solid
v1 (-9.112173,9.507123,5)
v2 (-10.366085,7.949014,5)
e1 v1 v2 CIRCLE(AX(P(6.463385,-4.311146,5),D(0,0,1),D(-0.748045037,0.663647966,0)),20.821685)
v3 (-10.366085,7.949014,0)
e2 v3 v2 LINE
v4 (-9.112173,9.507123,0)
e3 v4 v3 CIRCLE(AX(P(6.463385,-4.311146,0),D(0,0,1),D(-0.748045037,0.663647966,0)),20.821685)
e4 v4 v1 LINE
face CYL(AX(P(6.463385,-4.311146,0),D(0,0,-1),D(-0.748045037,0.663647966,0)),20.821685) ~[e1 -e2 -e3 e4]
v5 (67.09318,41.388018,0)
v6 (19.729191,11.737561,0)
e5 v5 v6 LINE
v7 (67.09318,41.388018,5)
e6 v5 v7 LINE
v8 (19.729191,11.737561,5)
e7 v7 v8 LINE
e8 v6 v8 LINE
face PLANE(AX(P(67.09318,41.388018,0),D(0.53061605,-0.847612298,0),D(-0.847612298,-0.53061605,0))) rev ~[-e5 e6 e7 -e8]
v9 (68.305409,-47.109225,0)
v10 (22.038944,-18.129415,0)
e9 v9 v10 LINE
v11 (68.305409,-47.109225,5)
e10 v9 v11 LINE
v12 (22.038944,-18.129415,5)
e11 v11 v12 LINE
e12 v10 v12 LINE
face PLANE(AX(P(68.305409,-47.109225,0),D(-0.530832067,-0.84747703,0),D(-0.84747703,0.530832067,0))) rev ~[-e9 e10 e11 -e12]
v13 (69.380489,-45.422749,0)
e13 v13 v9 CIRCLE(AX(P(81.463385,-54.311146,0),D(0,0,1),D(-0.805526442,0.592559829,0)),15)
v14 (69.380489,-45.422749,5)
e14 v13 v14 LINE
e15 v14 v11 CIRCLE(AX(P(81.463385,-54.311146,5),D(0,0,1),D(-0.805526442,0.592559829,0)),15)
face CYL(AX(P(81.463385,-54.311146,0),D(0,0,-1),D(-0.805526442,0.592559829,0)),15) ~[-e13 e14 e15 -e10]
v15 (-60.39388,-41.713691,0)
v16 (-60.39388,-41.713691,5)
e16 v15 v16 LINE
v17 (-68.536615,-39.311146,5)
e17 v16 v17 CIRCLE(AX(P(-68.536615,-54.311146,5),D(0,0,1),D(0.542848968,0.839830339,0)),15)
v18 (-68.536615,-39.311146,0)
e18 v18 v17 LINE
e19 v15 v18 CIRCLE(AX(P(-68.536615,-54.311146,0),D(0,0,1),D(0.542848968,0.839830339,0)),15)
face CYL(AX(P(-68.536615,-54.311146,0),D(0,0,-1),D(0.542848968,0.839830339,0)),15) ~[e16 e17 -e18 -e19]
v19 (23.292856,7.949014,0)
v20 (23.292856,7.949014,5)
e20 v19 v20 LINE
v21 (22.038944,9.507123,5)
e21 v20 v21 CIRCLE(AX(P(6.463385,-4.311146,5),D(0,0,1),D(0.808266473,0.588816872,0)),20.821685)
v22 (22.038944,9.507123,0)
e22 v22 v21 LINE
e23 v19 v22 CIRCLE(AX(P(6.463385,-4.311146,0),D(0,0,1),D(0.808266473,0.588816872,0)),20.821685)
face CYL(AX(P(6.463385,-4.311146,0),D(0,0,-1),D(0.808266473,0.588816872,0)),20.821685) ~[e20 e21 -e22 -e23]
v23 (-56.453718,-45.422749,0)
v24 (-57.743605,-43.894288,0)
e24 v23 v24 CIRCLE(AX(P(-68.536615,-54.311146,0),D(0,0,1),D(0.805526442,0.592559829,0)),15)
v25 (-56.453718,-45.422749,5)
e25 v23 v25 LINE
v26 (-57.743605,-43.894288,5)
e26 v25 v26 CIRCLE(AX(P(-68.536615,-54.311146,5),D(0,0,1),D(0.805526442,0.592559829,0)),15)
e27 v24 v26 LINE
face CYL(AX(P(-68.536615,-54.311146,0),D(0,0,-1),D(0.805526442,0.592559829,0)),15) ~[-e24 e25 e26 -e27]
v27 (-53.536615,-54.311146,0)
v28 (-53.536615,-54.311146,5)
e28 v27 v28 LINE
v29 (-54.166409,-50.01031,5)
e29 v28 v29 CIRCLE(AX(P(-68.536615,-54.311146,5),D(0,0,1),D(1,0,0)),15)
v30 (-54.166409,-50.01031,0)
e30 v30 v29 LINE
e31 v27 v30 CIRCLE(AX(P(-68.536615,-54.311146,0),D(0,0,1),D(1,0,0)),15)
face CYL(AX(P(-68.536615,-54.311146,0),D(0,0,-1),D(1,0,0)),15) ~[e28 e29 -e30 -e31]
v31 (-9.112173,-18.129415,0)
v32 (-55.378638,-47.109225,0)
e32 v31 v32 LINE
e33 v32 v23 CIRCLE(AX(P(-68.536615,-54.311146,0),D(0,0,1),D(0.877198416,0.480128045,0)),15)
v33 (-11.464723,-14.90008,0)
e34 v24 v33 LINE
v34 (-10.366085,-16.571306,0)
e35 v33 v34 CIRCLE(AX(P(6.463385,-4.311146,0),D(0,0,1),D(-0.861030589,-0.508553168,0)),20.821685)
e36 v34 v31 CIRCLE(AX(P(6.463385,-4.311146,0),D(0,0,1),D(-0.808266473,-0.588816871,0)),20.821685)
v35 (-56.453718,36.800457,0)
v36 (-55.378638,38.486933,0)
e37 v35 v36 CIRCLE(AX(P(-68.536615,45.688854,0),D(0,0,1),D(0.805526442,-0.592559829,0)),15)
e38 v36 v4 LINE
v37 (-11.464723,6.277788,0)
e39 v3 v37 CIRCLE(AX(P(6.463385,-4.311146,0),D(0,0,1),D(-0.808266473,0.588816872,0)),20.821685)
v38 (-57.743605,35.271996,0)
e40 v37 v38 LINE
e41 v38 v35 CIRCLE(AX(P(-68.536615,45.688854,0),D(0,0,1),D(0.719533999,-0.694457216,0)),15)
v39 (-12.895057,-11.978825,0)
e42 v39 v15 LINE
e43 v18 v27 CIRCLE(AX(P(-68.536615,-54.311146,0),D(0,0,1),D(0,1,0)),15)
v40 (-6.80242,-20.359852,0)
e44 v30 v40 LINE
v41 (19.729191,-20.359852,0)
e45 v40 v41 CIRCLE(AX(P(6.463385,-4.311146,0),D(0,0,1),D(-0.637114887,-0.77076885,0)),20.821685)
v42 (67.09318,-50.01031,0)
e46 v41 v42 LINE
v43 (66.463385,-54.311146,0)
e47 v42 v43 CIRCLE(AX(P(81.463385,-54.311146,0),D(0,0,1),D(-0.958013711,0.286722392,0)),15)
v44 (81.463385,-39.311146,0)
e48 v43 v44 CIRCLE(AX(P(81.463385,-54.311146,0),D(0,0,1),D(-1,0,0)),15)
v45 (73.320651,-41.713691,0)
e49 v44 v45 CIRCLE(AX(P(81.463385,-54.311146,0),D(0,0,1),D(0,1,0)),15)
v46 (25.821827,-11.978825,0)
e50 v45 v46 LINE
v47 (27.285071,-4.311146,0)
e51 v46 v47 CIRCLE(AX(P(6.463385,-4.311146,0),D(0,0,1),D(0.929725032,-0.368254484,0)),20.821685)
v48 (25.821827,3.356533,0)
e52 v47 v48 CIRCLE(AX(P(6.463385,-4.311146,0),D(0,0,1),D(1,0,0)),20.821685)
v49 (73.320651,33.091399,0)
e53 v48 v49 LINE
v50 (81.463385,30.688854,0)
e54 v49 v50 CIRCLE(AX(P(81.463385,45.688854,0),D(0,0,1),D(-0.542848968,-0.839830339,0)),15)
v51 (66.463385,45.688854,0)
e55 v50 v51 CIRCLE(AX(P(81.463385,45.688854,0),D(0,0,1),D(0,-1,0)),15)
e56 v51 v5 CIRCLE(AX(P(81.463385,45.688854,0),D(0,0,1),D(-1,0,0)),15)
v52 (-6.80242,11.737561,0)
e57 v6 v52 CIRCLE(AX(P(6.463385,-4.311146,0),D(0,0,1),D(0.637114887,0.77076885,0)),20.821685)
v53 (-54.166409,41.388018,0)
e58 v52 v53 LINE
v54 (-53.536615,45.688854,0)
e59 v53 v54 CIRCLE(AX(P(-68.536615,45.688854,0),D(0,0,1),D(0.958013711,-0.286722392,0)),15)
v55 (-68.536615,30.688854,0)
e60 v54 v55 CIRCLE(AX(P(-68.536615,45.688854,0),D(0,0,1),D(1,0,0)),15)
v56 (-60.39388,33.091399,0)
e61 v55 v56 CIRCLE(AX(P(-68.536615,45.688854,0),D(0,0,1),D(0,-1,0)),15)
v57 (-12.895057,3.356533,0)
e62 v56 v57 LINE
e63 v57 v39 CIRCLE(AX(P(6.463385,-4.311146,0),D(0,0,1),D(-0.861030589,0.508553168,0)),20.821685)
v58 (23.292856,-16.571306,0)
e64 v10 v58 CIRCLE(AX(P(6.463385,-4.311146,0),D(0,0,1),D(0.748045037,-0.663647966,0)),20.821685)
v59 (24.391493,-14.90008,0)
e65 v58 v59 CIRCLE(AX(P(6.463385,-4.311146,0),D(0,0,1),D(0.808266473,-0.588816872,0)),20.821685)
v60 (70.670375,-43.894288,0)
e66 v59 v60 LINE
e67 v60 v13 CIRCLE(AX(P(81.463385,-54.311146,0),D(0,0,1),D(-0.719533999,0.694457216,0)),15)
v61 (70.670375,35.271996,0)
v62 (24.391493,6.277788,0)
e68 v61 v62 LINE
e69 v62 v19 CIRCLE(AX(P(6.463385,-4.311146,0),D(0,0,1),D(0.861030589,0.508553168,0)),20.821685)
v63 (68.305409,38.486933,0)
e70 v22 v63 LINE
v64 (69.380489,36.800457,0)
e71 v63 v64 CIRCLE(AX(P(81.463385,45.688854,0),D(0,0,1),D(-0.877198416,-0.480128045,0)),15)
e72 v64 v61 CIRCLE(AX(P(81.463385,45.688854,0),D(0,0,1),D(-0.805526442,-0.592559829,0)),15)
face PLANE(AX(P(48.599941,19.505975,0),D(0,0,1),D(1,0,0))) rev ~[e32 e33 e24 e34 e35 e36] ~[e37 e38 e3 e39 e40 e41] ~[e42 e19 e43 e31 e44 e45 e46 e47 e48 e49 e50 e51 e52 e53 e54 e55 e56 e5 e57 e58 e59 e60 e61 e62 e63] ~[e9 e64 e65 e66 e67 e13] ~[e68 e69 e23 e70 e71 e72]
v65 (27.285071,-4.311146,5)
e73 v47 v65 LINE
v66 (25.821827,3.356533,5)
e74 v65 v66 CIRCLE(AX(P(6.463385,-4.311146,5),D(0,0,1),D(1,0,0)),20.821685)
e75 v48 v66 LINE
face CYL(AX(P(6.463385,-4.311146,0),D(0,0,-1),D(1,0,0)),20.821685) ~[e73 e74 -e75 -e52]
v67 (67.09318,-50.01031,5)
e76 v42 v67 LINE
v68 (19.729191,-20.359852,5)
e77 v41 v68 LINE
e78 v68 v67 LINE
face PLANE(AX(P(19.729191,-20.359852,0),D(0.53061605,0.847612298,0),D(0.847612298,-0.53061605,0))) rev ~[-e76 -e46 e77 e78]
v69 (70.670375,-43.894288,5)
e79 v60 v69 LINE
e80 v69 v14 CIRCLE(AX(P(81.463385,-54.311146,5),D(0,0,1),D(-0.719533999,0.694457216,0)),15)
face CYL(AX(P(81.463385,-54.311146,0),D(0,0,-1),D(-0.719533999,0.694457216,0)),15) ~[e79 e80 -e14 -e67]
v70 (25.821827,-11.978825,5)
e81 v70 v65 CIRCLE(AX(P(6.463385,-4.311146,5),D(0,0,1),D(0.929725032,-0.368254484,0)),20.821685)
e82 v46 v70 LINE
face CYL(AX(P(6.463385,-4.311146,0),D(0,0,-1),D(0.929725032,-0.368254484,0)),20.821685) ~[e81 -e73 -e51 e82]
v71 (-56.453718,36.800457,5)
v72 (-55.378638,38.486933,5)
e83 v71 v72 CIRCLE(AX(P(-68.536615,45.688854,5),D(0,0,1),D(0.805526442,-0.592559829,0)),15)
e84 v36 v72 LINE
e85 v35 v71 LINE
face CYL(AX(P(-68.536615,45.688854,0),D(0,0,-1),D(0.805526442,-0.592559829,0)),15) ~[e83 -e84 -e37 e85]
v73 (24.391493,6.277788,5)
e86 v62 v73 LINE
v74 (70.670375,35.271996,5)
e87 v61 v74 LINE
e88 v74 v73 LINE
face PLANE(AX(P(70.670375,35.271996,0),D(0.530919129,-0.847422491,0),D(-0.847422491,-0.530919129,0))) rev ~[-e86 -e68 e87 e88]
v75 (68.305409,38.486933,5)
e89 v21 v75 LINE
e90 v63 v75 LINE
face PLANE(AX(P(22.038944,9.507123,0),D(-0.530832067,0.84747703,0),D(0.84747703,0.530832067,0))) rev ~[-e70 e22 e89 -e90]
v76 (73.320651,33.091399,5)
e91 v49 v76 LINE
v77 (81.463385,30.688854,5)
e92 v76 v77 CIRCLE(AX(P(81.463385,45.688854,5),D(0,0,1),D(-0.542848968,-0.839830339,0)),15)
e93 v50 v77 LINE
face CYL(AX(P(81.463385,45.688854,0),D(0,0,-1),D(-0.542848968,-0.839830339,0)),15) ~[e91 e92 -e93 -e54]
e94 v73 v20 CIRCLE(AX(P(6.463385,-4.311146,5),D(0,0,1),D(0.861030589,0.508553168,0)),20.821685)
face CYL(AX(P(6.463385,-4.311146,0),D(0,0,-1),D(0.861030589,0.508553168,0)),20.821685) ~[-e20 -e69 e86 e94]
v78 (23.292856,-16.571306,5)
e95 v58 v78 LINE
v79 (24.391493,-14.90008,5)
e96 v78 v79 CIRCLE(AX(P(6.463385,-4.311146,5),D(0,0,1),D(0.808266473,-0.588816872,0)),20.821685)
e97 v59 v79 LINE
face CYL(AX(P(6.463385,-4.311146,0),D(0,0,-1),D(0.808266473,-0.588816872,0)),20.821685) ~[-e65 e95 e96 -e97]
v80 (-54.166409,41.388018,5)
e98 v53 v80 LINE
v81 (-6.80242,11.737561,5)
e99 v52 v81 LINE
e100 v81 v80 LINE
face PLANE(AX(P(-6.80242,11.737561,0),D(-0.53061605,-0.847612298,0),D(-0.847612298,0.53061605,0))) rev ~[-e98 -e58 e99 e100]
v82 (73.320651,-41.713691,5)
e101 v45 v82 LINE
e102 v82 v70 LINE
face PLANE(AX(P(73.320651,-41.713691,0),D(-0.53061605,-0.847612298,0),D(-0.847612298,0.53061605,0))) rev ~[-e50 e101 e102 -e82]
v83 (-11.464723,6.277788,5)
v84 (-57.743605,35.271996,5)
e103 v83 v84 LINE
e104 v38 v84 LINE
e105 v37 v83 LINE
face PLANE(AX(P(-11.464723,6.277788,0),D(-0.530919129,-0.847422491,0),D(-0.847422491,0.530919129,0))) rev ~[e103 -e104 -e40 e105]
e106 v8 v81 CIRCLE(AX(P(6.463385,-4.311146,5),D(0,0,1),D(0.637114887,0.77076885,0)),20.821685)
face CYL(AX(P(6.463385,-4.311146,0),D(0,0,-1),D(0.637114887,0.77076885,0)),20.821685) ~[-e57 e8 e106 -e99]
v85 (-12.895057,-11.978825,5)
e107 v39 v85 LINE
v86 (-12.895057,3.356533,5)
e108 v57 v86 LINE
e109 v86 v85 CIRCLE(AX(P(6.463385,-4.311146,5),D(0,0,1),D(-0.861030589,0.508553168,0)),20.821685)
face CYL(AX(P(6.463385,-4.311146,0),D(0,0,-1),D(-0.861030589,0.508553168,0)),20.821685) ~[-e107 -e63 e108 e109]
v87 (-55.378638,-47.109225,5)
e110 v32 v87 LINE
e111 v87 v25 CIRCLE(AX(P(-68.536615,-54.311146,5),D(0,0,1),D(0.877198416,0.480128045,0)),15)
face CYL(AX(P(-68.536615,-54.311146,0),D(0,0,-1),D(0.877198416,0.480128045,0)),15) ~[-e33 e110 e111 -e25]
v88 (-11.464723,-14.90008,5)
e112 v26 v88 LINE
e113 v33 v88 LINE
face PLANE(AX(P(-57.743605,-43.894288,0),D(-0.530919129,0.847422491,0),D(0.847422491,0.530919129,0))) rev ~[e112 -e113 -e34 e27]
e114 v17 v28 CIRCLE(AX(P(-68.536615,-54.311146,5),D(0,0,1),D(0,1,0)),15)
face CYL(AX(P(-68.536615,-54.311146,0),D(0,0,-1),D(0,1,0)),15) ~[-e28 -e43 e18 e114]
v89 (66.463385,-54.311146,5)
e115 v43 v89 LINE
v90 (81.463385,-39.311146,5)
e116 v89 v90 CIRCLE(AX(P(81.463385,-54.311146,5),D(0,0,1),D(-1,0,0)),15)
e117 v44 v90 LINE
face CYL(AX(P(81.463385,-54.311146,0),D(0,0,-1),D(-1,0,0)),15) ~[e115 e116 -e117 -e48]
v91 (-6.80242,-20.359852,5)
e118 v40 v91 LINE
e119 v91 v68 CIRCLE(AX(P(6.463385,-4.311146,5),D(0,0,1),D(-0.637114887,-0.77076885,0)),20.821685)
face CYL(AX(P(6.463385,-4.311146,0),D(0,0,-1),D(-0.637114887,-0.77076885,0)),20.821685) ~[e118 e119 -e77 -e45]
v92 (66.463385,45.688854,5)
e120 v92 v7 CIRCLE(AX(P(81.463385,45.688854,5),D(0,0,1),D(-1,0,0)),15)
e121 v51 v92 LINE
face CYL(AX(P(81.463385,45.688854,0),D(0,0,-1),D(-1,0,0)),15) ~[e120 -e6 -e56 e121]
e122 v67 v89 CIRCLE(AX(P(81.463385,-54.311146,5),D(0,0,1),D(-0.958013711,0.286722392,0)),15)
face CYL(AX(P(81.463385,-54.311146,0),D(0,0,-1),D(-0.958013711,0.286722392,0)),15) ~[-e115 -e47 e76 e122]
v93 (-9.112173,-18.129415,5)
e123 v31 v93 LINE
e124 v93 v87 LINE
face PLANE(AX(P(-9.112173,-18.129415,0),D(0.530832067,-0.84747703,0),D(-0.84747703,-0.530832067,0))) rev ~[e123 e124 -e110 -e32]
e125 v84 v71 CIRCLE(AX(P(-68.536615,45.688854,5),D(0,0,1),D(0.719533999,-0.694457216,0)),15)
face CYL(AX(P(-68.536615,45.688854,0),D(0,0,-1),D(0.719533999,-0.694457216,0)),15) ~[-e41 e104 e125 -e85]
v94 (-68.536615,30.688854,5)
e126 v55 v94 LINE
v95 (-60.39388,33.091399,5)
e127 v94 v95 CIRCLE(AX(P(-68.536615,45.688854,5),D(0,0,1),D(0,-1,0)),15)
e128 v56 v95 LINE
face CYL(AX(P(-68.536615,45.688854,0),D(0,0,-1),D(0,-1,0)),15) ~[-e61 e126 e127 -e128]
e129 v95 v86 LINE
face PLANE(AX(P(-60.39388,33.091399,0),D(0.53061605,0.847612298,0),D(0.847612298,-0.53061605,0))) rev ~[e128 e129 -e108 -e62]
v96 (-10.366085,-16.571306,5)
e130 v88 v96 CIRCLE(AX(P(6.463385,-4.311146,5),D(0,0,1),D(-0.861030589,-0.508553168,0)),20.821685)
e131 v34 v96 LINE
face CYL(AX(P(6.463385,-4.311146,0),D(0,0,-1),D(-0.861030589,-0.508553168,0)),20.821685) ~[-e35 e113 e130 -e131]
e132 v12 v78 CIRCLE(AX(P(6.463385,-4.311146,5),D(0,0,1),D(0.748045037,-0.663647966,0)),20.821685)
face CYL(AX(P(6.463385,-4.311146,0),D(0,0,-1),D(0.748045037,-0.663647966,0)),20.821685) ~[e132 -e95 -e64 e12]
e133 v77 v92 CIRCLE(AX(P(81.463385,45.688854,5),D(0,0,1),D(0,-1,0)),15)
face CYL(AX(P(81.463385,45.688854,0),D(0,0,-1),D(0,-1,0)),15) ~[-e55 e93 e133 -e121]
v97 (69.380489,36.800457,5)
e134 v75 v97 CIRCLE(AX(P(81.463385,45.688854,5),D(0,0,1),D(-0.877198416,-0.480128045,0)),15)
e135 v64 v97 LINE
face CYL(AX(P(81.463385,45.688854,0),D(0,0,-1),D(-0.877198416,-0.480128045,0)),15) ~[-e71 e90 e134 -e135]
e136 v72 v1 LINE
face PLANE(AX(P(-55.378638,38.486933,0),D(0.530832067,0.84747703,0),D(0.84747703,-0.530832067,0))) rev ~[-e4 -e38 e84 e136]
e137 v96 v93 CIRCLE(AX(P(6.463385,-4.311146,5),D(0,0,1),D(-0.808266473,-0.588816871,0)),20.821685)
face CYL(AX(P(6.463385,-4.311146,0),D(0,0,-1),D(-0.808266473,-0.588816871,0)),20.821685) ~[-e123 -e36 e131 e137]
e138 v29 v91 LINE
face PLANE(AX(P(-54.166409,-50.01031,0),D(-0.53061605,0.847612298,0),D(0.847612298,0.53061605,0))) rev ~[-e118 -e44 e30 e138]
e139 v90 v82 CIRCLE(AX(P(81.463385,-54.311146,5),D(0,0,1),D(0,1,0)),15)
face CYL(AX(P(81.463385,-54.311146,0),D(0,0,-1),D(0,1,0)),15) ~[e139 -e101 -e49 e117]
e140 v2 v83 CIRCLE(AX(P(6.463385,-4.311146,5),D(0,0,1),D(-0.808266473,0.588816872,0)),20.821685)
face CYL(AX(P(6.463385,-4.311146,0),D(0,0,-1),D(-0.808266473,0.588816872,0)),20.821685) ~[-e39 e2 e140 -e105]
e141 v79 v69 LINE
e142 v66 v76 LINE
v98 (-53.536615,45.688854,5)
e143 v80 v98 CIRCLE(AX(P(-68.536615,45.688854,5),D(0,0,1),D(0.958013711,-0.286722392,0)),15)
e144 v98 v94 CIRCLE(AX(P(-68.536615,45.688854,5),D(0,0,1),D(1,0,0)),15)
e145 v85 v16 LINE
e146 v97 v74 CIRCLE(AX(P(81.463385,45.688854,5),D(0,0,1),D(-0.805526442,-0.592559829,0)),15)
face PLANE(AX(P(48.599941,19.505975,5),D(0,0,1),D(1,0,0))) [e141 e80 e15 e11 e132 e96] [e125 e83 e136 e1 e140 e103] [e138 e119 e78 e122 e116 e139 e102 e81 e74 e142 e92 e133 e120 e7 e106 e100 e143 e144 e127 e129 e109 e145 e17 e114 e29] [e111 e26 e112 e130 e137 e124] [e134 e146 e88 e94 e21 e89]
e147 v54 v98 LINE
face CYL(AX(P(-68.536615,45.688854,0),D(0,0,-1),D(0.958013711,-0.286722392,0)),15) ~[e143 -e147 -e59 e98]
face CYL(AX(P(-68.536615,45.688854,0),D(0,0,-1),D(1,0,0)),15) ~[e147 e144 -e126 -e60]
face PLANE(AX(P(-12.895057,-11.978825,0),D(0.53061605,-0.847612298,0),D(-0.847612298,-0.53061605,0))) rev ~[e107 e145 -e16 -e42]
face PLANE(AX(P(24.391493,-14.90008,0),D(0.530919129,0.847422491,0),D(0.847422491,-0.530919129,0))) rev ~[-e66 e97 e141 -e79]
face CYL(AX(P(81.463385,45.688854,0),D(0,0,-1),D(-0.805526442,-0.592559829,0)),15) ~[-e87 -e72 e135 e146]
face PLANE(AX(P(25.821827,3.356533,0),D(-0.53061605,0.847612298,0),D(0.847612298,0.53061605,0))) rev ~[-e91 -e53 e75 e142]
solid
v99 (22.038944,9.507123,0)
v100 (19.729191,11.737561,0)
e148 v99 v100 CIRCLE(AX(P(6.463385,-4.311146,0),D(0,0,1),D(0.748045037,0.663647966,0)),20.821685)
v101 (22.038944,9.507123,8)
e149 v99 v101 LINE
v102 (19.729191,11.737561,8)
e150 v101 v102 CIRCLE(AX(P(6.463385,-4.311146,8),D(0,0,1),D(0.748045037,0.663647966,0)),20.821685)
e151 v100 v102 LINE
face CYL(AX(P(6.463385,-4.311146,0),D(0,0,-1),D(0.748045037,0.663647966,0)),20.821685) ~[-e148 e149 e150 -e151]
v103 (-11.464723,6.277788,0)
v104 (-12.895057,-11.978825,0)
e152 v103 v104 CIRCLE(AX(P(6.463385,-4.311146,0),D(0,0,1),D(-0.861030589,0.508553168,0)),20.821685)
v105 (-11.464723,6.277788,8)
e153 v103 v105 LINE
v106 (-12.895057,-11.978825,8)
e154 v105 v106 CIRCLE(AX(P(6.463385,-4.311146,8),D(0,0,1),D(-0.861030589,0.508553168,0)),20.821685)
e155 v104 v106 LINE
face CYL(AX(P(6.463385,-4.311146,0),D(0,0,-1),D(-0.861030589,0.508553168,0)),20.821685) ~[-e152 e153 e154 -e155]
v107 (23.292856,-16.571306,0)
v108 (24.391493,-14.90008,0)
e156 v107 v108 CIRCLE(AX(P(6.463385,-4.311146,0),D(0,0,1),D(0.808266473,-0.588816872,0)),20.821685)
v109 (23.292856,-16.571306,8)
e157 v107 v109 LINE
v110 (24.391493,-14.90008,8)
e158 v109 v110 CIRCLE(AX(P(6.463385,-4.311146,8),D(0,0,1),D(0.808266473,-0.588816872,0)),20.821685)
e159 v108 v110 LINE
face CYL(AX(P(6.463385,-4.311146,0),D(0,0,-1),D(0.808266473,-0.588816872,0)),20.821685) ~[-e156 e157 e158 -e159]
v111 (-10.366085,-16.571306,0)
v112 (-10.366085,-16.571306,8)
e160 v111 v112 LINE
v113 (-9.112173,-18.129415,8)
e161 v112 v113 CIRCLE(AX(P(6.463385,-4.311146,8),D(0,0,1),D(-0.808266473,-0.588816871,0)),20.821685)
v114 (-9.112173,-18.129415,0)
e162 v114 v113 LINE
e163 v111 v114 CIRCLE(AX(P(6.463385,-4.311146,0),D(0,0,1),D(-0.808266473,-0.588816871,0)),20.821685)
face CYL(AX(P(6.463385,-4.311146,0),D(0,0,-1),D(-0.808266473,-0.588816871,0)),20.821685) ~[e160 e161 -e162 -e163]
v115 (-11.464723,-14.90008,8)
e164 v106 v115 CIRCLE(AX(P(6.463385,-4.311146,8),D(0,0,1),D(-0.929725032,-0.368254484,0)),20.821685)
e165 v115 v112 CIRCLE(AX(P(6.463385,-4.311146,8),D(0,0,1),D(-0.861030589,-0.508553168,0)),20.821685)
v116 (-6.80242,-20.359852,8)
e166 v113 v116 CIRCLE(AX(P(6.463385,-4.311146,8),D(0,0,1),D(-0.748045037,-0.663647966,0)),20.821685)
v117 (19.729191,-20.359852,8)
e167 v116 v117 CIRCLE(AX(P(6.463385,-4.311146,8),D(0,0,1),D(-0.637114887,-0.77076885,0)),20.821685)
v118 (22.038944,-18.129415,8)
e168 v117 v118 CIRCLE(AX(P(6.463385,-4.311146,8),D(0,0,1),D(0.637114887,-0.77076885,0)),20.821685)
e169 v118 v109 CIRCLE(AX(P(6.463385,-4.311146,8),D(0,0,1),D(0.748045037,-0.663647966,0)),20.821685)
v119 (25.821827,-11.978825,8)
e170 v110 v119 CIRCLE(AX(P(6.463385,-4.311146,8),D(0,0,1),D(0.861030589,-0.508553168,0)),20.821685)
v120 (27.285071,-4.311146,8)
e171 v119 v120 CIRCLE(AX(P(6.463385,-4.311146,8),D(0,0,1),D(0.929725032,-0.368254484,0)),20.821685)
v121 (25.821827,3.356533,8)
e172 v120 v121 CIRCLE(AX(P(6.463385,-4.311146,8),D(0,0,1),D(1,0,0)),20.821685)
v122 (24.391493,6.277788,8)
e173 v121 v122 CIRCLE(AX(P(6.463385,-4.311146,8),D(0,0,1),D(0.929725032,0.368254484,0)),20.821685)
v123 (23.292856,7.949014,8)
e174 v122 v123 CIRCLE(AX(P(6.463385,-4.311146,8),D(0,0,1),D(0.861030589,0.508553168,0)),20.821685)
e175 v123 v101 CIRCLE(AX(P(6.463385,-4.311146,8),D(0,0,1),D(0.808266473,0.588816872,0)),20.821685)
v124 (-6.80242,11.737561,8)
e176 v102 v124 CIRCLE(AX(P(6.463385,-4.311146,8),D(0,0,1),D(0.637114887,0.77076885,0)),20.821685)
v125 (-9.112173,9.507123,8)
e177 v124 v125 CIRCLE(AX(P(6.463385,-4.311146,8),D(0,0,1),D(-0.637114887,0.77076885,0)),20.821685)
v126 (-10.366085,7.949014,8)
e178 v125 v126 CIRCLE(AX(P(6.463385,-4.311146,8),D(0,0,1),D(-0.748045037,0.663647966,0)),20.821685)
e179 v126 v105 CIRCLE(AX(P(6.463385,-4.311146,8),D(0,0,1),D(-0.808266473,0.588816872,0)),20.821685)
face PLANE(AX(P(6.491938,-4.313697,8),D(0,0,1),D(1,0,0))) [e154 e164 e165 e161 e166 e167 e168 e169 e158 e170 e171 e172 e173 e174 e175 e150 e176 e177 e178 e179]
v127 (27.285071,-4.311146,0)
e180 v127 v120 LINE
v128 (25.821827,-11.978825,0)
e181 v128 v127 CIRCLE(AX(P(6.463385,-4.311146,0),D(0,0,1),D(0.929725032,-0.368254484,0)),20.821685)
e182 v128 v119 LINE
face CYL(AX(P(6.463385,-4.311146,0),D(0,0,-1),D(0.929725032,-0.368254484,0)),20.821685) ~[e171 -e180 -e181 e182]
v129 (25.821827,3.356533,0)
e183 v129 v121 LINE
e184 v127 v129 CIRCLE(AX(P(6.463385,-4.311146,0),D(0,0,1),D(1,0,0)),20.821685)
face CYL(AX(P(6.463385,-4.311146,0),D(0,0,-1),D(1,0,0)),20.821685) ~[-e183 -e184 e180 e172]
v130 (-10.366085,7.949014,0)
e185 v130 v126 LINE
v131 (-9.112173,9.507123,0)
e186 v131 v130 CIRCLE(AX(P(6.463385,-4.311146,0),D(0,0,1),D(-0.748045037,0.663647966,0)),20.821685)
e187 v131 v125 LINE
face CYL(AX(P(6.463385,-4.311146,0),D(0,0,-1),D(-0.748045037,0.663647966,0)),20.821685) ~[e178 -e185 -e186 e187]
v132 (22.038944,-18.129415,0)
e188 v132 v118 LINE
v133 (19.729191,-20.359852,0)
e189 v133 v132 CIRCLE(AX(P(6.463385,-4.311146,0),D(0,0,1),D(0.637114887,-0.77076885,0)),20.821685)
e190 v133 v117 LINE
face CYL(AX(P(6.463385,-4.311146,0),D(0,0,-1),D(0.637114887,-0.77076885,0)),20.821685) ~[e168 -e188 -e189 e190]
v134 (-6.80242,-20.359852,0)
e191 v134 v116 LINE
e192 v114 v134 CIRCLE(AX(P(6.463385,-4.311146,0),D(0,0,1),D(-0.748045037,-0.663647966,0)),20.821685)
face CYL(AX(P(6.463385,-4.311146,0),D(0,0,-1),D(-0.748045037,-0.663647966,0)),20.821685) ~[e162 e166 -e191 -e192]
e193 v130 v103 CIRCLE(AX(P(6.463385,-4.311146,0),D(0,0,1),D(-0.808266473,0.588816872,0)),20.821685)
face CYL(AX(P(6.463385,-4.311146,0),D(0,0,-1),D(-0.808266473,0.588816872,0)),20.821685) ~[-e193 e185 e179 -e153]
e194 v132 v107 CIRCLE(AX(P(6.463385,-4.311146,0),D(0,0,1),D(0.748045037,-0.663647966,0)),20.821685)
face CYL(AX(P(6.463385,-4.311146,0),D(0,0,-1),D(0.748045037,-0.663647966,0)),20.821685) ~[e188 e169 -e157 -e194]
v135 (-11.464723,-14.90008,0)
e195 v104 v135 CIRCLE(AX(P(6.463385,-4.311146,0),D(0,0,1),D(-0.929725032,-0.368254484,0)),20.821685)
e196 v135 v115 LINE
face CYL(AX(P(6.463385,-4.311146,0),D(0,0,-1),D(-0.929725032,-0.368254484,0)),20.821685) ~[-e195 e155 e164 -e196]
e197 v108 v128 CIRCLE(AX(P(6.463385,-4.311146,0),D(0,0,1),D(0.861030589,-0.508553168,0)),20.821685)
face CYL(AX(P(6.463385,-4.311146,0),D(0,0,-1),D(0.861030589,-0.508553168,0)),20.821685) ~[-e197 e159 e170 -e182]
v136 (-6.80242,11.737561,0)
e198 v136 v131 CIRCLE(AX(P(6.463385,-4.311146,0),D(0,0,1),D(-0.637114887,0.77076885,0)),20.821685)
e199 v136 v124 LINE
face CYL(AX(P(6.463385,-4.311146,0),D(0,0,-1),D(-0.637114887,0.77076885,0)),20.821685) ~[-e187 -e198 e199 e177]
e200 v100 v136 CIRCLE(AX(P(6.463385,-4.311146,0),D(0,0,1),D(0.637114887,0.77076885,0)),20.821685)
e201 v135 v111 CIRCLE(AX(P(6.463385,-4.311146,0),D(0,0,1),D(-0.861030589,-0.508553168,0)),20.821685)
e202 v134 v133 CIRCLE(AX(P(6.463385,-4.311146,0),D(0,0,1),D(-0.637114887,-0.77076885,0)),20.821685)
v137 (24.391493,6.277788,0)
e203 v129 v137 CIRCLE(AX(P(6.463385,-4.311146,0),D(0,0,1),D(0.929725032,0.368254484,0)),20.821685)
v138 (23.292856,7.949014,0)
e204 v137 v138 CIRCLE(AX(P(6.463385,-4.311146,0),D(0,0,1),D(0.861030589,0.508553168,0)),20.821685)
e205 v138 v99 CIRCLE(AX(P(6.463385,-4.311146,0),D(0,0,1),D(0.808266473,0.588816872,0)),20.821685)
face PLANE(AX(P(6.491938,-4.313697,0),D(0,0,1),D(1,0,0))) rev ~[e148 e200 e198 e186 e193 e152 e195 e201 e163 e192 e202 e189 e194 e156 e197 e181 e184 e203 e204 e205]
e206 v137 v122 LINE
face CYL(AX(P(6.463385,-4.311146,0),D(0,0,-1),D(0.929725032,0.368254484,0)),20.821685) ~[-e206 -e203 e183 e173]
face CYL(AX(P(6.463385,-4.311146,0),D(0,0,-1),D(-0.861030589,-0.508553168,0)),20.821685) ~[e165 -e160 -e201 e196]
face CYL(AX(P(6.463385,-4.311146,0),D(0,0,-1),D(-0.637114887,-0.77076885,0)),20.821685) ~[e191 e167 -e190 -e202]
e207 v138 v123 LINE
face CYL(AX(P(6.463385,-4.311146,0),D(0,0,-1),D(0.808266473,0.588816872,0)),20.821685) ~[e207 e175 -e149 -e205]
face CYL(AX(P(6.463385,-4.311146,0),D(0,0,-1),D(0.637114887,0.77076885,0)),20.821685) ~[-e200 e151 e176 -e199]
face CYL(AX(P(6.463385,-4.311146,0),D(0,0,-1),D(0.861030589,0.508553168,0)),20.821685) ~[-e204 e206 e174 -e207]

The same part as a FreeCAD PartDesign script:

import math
import FreeCAD as App
import Part
import Sketcher

V = App.Vector

doc = App.newDocument("Part")
body = doc.addObject("PartDesign::Body", "Body")

# Sketch on XY plane
sketch1 = body.newObject("Sketcher::SketchObject", "Sketch")
sketch1.AttachmentSupport = (doc.getObject("XY_Plane"), [""])
sketch1.MapMode = "FlatFace"
sketch1.addGeometry(Part.ArcOfCircle(Part.Circle(V(6.5, -4.3, 0), V(0, 0, 1), 20.8), math.radians(-22), math.radians(0)), False)
sketch1.addGeometry(Part.ArcOfCircle(Part.Circle(V(6.5, -4.3, 0), V(0, 0, 1), 20.8), math.radians(0), math.radians(22)), False)
sketch1.addGeometry(Part.ArcOfCircle(Part.Circle(V(6.5, -4.3, 0), V(0, 0, 1), 20.8), math.radians(21.61), math.radians(30.57)), False)
sketch1.addGeometry(Part.ArcOfCircle(Part.Circle(V(6.5, -4.3, 0), V(0, 0, 1), 20.8), math.radians(30.57), math.radians(36.07)), False)
sketch1.addGeometry(Part.ArcOfCircle(Part.Circle(V(6.5, -4.3, 0), V(0, 0, 1), 20.8), math.radians(36.07), math.radians(41.58)), False)
sketch1.addGeometry(Part.ArcOfCircle(Part.Circle(V(6.5, -4.3, 0), V(0, 0, 1), 20.8), math.radians(41.58), math.radians(50.42)), False)
sketch1.addGeometry(Part.ArcOfCircle(Part.Circle(V(6.5, -4.3, 0), V(0, 0, 1), 20.8), math.radians(50), math.radians(130)), False)
sketch1.addGeometry(Part.ArcOfCircle(Part.Circle(V(6.5, -4.3, 0), V(0, 0, 1), 20.8), math.radians(129.58), math.radians(138.42)), False)
sketch1.addGeometry(Part.ArcOfCircle(Part.Circle(V(6.5, -4.3, 0), V(0, 0, 1), 20.8), math.radians(138.42), math.radians(143.93)), False)
sketch1.addGeometry(Part.ArcOfCircle(Part.Circle(V(6.5, -4.3, 0), V(0, 0, 1), 20.8), math.radians(143.93), math.radians(149.43)), False)
sketch1.addGeometry(Part.ArcOfCircle(Part.Circle(V(6.5, -4.3, 0), V(0, 0, 1), 20.8), math.radians(149), math.radians(202)), False)
sketch1.addGeometry(Part.ArcOfCircle(Part.Circle(V(6.5, -4.3, 0), V(0, 0, 1), 20.8), math.radians(-158.39), math.radians(-149.43)), False)
sketch1.addGeometry(Part.ArcOfCircle(Part.Circle(V(6.5, -4.3, 0), V(0, 0, 1), 20.8), math.radians(-149.43), math.radians(-143.93)), False)
sketch1.addGeometry(Part.ArcOfCircle(Part.Circle(V(6.5, -4.3, 0), V(0, 0, 1), 20.8), math.radians(-143.93), math.radians(-138.42)), False)
sketch1.addGeometry(Part.ArcOfCircle(Part.Circle(V(6.5, -4.3, 0), V(0, 0, 1), 20.8), math.radians(-138.42), math.radians(-129.58)), False)
sketch1.addGeometry(Part.ArcOfCircle(Part.Circle(V(6.5, -4.3, 0), V(0, 0, 1), 20.8), math.radians(-130), math.radians(-50)), False)
sketch1.addGeometry(Part.ArcOfCircle(Part.Circle(V(6.5, -4.3, 0), V(0, 0, 1), 20.8), math.radians(-50.42), math.radians(-41.58)), False)
sketch1.addGeometry(Part.ArcOfCircle(Part.Circle(V(6.5, -4.3, 0), V(0, 0, 1), 20.8), math.radians(-41.58), math.radians(-36.07)), False)
sketch1.addGeometry(Part.ArcOfCircle(Part.Circle(V(6.5, -4.3, 0), V(0, 0, 1), 20.8), math.radians(-36.07), math.radians(-30.57)), False)
sketch1.addGeometry(Part.ArcOfCircle(Part.Circle(V(6.5, -4.3, 0), V(0, 0, 1), 20.8), math.radians(-30.57), math.radians(-21.61)), False)
sketch1.addConstraint(Sketcher.Constraint("Tangent", 0, 2, 1, 1))
sketch1.addConstraint(Sketcher.Constraint("Tangent", 1, 2, 2, 1))
sketch1.addConstraint(Sketcher.Constraint("Tangent", 2, 2, 3, 1))
sketch1.addConstraint(Sketcher.Constraint("Tangent", 3, 2, 4, 1))
sketch1.addConstraint(Sketcher.Constraint("Tangent", 4, 2, 5, 1))
sketch1.addConstraint(Sketcher.Constraint("Tangent", 5, 2, 6, 1))
sketch1.addConstraint(Sketcher.Constraint("Tangent", 6, 2, 7, 1))
sketch1.addConstraint(Sketcher.Constraint("Tangent", 7, 2, 8, 1))
sketch1.addConstraint(Sketcher.Constraint("Tangent", 8, 2, 9, 1))
sketch1.addConstraint(Sketcher.Constraint("Tangent", 9, 2, 10, 1))
sketch1.addConstraint(Sketcher.Constraint("Tangent", 10, 2, 11, 1))
sketch1.addConstraint(Sketcher.Constraint("Tangent", 11, 2, 12, 1))
sketch1.addConstraint(Sketcher.Constraint("Tangent", 12, 2, 13, 1))
sketch1.addConstraint(Sketcher.Constraint("Tangent", 13, 2, 14, 1))
sketch1.addConstraint(Sketcher.Constraint("Tangent", 14, 2, 15, 1))
sketch1.addConstraint(Sketcher.Constraint("Tangent", 15, 2, 16, 1))
sketch1.addConstraint(Sketcher.Constraint("Tangent", 16, 2, 17, 1))
sketch1.addConstraint(Sketcher.Constraint("Tangent", 17, 2, 18, 1))
sketch1.addConstraint(Sketcher.Constraint("Tangent", 18, 2, 19, 1))
sketch1.addConstraint(Sketcher.Constraint("Tangent", 19, 2, 0, 1))
sketch1.addConstraint(Sketcher.Constraint("Coincident", 2, 3, 0, 3))
sketch1.addConstraint(Sketcher.Constraint("Coincident", 4, 3, 0, 3))
sketch1.addConstraint(Sketcher.Constraint("Coincident", 6, 3, 0, 3))
sketch1.addConstraint(Sketcher.Constraint("Coincident", 8, 3, 0, 3))
sketch1.addConstraint(Sketcher.Constraint("Coincident", 10, 3, 0, 3))
sketch1.addConstraint(Sketcher.Constraint("Coincident", 12, 3, 0, 3))
sketch1.addConstraint(Sketcher.Constraint("Coincident", 14, 3, 0, 3))
sketch1.addConstraint(Sketcher.Constraint("Coincident", 16, 3, 0, 3))
sketch1.addConstraint(Sketcher.Constraint("Equal", 16, 17))
sketch1.addConstraint(Sketcher.Constraint("Horizontal", 19, 3, 0, 2))
sketch1.addConstraint(Sketcher.Constraint("Horizontal", 5, 2, 6, 2))
sketch1.addConstraint(Sketcher.Constraint("Horizontal", 4, 2, 7, 2))
sketch1.addConstraint(Sketcher.Constraint("Horizontal", 3, 2, 8, 2))
sketch1.addConstraint(Sketcher.Constraint("Horizontal", 2, 2, 9, 2))
sketch1.addConstraint(Sketcher.Constraint("Horizontal", 14, 2, 15, 2))
sketch1.addConstraint(Sketcher.Constraint("Horizontal", 13, 2, 16, 2))
sketch1.addConstraint(Sketcher.Constraint("Horizontal", 12, 2, 17, 2))
sketch1.addConstraint(Sketcher.Constraint("Horizontal", 11, 2, 18, 2))
sketch1.addConstraint(Sketcher.Constraint("Horizontal", 10, 2, 19, 2))
sketch1.addConstraint(Sketcher.Constraint("Vertical", 9, 2, 11, 2))
sketch1.addConstraint(Sketcher.Constraint("Vertical", 8, 2, 12, 2))
sketch1.addConstraint(Sketcher.Constraint("Vertical", 7, 2, 13, 2))
sketch1.addConstraint(Sketcher.Constraint("Vertical", 6, 2, 14, 2))
sketch1.addConstraint(Sketcher.Constraint("Vertical", 1, 2, 19, 2))
sketch1.addConstraint(Sketcher.Constraint("Radius", 0, 20.821685))
sketch1.addConstraint(Sketcher.Constraint("DistanceX", -1, 1, 0, 2, 27.285071))
sketch1.addConstraint(Sketcher.Constraint("DistanceY", -1, 1, 2, 2, 6.277788))
sketch1.addConstraint(Sketcher.Constraint("DistanceX", -1, 1, 5, 2, 19.729191))
sketch1.addConstraint(Sketcher.Constraint("DistanceY", -1, 1, 5, 2, 11.737561))
sketch1.addConstraint(Sketcher.Constraint("DistanceY", 0, 2, 1, 2, 7.667679))
sketch1.addConstraint(Sketcher.Constraint("DistanceX", 3, 2, 1, 2, 2.528972))
sketch1.addConstraint(Sketcher.Constraint("DistanceX", 4, 2, 3, 2, 1.253912))
pad1 = body.newObject("PartDesign::Pad", "Pad")
pad1.Profile = sketch1
pad1.Length = 8
body2 = doc.addObject("PartDesign::Body", "Body001")

# Sketch on XY plane
sketch2 = body2.newObject("Sketcher::SketchObject", "Sketch001")
sketch2.AttachmentSupport = (doc.getObject("XY_Plane001"), [""])
sketch2.MapMode = "FlatFace"
sketch2.addGeometry(Part.LineSegment(V(25.8, 3.4, 0), V(73.3, 33.1, 0)), False)
sketch2.addGeometry(Part.ArcOfCircle(Part.Circle(V(81.5, 45.7, 0), V(0, 0, 1), 15), math.radians(-123), math.radians(-90)), False)
sketch2.addGeometry(Part.ArcOfCircle(Part.Circle(V(81.5, 45.7, 0), V(0, 0, 1), 15), math.radians(-90), math.radians(180)), False)
sketch2.addGeometry(Part.ArcOfCircle(Part.Circle(V(81.5, 45.7, 0), V(0, 0, 1), 15), math.radians(180), math.radians(196.66)), False)
sketch2.addGeometry(Part.LineSegment(V(67.1, 41.4, 0), V(19.7, 11.7, 0)), False)
sketch2.addGeometry(Part.ArcOfCircle(Part.Circle(V(6.5, -4.3, 0), V(0, 0, 1), 20.8), math.radians(50), math.radians(130)), False)
sketch2.addGeometry(Part.LineSegment(V(-6.8, 11.7, 0), V(-54.2, 41.4, 0)), False)
sketch2.addGeometry(Part.ArcOfCircle(Part.Circle(V(-68.5, 45.7, 0), V(0, 0, 1), 15), math.radians(-16.66), math.radians(0)), False)
sketch2.addGeometry(Part.ArcOfCircle(Part.Circle(V(-68.5, 45.7, 0), V(0, 0, 1), 15), math.radians(0), math.radians(270)), False)
sketch2.addGeometry(Part.ArcOfCircle(Part.Circle(V(-68.5, 45.7, 0), V(0, 0, 1), 15), math.radians(-90), math.radians(-57)), False)
sketch2.addGeometry(Part.LineSegment(V(-60.4, 33.1, 0), V(-12.9, 3.4, 0)), False)
sketch2.addGeometry(Part.ArcOfCircle(Part.Circle(V(6.5, -4.3, 0), V(0, 0, 1), 20.8), math.radians(158), math.radians(202)), False)
sketch2.addGeometry(Part.LineSegment(V(-12.9, -12, 0), V(-60.4, -41.7, 0)), False)
sketch2.addGeometry(Part.ArcOfCircle(Part.Circle(V(-68.5, -54.3, 0), V(0, 0, 1), 15), math.radians(57), math.radians(90)), False)
sketch2.addGeometry(Part.ArcOfCircle(Part.Circle(V(-68.5, -54.3, 0), V(0, 0, 1), 15), math.radians(90), math.radians(360)), False)
sketch2.addGeometry(Part.ArcOfCircle(Part.Circle(V(-68.5, -54.3, 0), V(0, 0, 1), 15), math.radians(0), math.radians(16.66)), False)
sketch2.addGeometry(Part.LineSegment(V(-54.2, -50, 0), V(-6.8, -20.4, 0)), False)
sketch2.addGeometry(Part.ArcOfCircle(Part.Circle(V(6.5, -4.3, 0), V(0, 0, 1), 20.8), math.radians(-130), math.radians(-50)), False)
sketch2.addGeometry(Part.LineSegment(V(19.7, -20.4, 0), V(67.1, -50, 0)), False)
sketch2.addGeometry(Part.ArcOfCircle(Part.Circle(V(81.5, -54.3, 0), V(0, 0, 1), 15), math.radians(163.34), math.radians(180)), False)
sketch2.addGeometry(Part.ArcOfCircle(Part.Circle(V(81.5, -54.3, 0), V(0, 0, 1), 15), math.radians(180), math.radians(450)), False)
sketch2.addGeometry(Part.ArcOfCircle(Part.Circle(V(81.5, -54.3, 0), V(0, 0, 1), 15), math.radians(90), math.radians(123)), False)
sketch2.addGeometry(Part.LineSegment(V(73.3, -41.7, 0), V(25.8, -12, 0)), False)
sketch2.addGeometry(Part.ArcOfCircle(Part.Circle(V(6.5, -4.3, 0), V(0, 0, 1), 20.8), math.radians(-22), math.radians(0)), False)
sketch2.addGeometry(Part.ArcOfCircle(Part.Circle(V(6.5, -4.3, 0), V(0, 0, 1), 20.8), math.radians(0), math.radians(22)), False)
sketch2.addGeometry(Part.LineSegment(V(-57.7, -43.9, 0), V(-11.5, -14.9, 0)), False)
sketch2.addGeometry(Part.ArcOfCircle(Part.Circle(V(6.5, -4.3, 0), V(0, 0, 1), 20.8), math.radians(-149.43), math.radians(-143.93)), False)
sketch2.addGeometry(Part.ArcOfCircle(Part.Circle(V(6.5, -4.3, 0), V(0, 0, 1), 20.8), math.radians(-143.93), math.radians(-138.42)), False)
sketch2.addGeometry(Part.LineSegment(V(-9.1, -18.1, 0), V(-55.4, -47.1, 0)), False)
sketch2.addGeometry(Part.ArcOfCircle(Part.Circle(V(-68.5, -54.3, 0), V(0, 0, 1), 15), math.radians(28.69), math.radians(36.34)), False)
sketch2.addGeometry(Part.ArcOfCircle(Part.Circle(V(-68.5, -54.3, 0), V(0, 0, 1), 15), math.radians(36.34), math.radians(43.98)), False)
sketch2.addGeometry(Part.LineSegment(V(68.3, -47.1, 0), V(22, -18.1, 0)), False)
sketch2.addGeometry(Part.ArcOfCircle(Part.Circle(V(6.5, -4.3, 0), V(0, 0, 1), 20.8), math.radians(-41.58), math.radians(-36.07)), False)
sketch2.addGeometry(Part.ArcOfCircle(Part.Circle(V(6.5, -4.3, 0), V(0, 0, 1), 20.8), math.radians(-36.07), math.radians(-30.57)), False)
sketch2.addGeometry(Part.LineSegment(V(24.4, -14.9, 0), V(70.7, -43.9, 0)), False)
sketch2.addGeometry(Part.ArcOfCircle(Part.Circle(V(81.5, -54.3, 0), V(0, 0, 1), 15), math.radians(136.02), math.radians(143.66)), False)
sketch2.addGeometry(Part.ArcOfCircle(Part.Circle(V(81.5, -54.3, 0), V(0, 0, 1), 15), math.radians(143.66), math.radians(151.31)), False)
sketch2.addGeometry(Part.LineSegment(V(22, 9.5, 0), V(68.3, 38.5, 0)), False)
sketch2.addGeometry(Part.ArcOfCircle(Part.Circle(V(81.5, 45.7, 0), V(0, 0, 1), 15), math.radians(-151.31), math.radians(-143.66)), False)
sketch2.addGeometry(Part.ArcOfCircle(Part.Circle(V(81.5, 45.7, 0), V(0, 0, 1), 15), math.radians(-143.66), math.radians(-136.02)), False)
sketch2.addGeometry(Part.LineSegment(V(70.7, 35.3, 0), V(24.4, 6.3, 0)), False)
sketch2.addGeometry(Part.ArcOfCircle(Part.Circle(V(6.5, -4.3, 0), V(0, 0, 1), 20.8), math.radians(30.57), math.radians(36.07)), False)
sketch2.addGeometry(Part.ArcOfCircle(Part.Circle(V(6.5, -4.3, 0), V(0, 0, 1), 20.8), math.radians(36.07), math.radians(41.58)), False)
sketch2.addGeometry(Part.ArcOfCircle(Part.Circle(V(6.5, -4.3, 0), V(0, 0, 1), 20.8), math.radians(138.42), math.radians(143.93)), False)
sketch2.addGeometry(Part.ArcOfCircle(Part.Circle(V(6.5, -4.3, 0), V(0, 0, 1), 20.8), math.radians(143.93), math.radians(149.43)), False)
sketch2.addGeometry(Part.LineSegment(V(-11.5, 6.3, 0), V(-57.7, 35.3, 0)), False)
sketch2.addGeometry(Part.ArcOfCircle(Part.Circle(V(-68.5, 45.7, 0), V(0, 0, 1), 15), math.radians(-43.98), math.radians(-36.34)), False)
sketch2.addGeometry(Part.ArcOfCircle(Part.Circle(V(-68.5, 45.7, 0), V(0, 0, 1), 15), math.radians(-36.34), math.radians(-28.69)), False)
sketch2.addGeometry(Part.LineSegment(V(-55.4, 38.5, 0), V(-9.1, 9.5, 0)), False)
sketch2.addConstraint(Sketcher.Constraint("Coincident", 0, 2, 1, 1))
sketch2.addConstraint(Sketcher.Constraint("Tangent", 1, 2, 2, 1))
sketch2.addConstraint(Sketcher.Constraint("Tangent", 2, 2, 3, 1))
sketch2.addConstraint(Sketcher.Constraint("Coincident", 3, 2, 4, 1))
sketch2.addConstraint(Sketcher.Constraint("Coincident", 4, 2, 5, 1))
sketch2.addConstraint(Sketcher.Constraint("Coincident", 5, 2, 6, 1))
sketch2.addConstraint(Sketcher.Constraint("Coincident", 6, 2, 7, 1))
sketch2.addConstraint(Sketcher.Constraint("Tangent", 7, 2, 8, 1))
sketch2.addConstraint(Sketcher.Constraint("Tangent", 8, 2, 9, 1))
sketch2.addConstraint(Sketcher.Constraint("Coincident", 9, 2, 10, 1))
sketch2.addConstraint(Sketcher.Constraint("Coincident", 10, 2, 11, 1))
sketch2.addConstraint(Sketcher.Constraint("Coincident", 11, 2, 12, 1))
sketch2.addConstraint(Sketcher.Constraint("Coincident", 12, 2, 13, 1))
sketch2.addConstraint(Sketcher.Constraint("Tangent", 13, 2, 14, 1))
sketch2.addConstraint(Sketcher.Constraint("Tangent", 14, 2, 15, 1))
sketch2.addConstraint(Sketcher.Constraint("Coincident", 15, 2, 16, 1))
sketch2.addConstraint(Sketcher.Constraint("Coincident", 16, 2, 17, 1))
sketch2.addConstraint(Sketcher.Constraint("Coincident", 17, 2, 18, 1))
sketch2.addConstraint(Sketcher.Constraint("Coincident", 18, 2, 19, 1))
sketch2.addConstraint(Sketcher.Constraint("Tangent", 19, 2, 20, 1))
sketch2.addConstraint(Sketcher.Constraint("Tangent", 20, 2, 21, 1))
sketch2.addConstraint(Sketcher.Constraint("Coincident", 21, 2, 22, 1))
sketch2.addConstraint(Sketcher.Constraint("Coincident", 22, 2, 23, 1))
sketch2.addConstraint(Sketcher.Constraint("Tangent", 23, 2, 24, 1))
sketch2.addConstraint(Sketcher.Constraint("Coincident", 24, 2, 0, 1))
sketch2.addConstraint(Sketcher.Constraint("Coincident", 25, 2, 26, 1))
sketch2.addConstraint(Sketcher.Constraint("Tangent", 26, 2, 27, 1))
sketch2.addConstraint(Sketcher.Constraint("Coincident", 27, 2, 28, 1))
sketch2.addConstraint(Sketcher.Constraint("Coincident", 28, 2, 29, 1))
sketch2.addConstraint(Sketcher.Constraint("Tangent", 29, 2, 30, 1))
sketch2.addConstraint(Sketcher.Constraint("Coincident", 30, 2, 25, 1))
sketch2.addConstraint(Sketcher.Constraint("Coincident", 31, 2, 32, 1))
sketch2.addConstraint(Sketcher.Constraint("Tangent", 32, 2, 33, 1))
sketch2.addConstraint(Sketcher.Constraint("Coincident", 33, 2, 34, 1))
sketch2.addConstraint(Sketcher.Constraint("Coincident", 34, 2, 35, 1))
sketch2.addConstraint(Sketcher.Constraint("Tangent", 35, 2, 36, 1))
sketch2.addConstraint(Sketcher.Constraint("Coincident", 36, 2, 31, 1))
sketch2.addConstraint(Sketcher.Constraint("Coincident", 37, 2, 38, 1))
sketch2.addConstraint(Sketcher.Constraint("Tangent", 38, 2, 39, 1))
sketch2.addConstraint(Sketcher.Constraint("Coincident", 39, 2, 40, 1))
sketch2.addConstraint(Sketcher.Constraint("Coincident", 40, 2, 41, 1))
sketch2.addConstraint(Sketcher.Constraint("Tangent", 41, 2, 42, 1))
sketch2.addConstraint(Sketcher.Constraint("Coincident", 42, 2, 37, 1))
sketch2.addConstraint(Sketcher.Constraint("Tangent", 43, 2, 44, 1))
sketch2.addConstraint(Sketcher.Constraint("Coincident", 44, 2, 45, 1))
sketch2.addConstraint(Sketcher.Constraint("Coincident", 45, 2, 46, 1))
sketch2.addConstraint(Sketcher.Constraint("Tangent", 46, 2, 47, 1))
sketch2.addConstraint(Sketcher.Constraint("Coincident", 47, 2, 48, 1))
sketch2.addConstraint(Sketcher.Constraint("Coincident", 48, 2, 43, 1))
sketch2.addConstraint(Sketcher.Constraint("Coincident", 3, 3, 1, 3))
sketch2.addConstraint(Sketcher.Constraint("Coincident", 9, 3, 7, 3))
sketch2.addConstraint(Sketcher.Constraint("Coincident", 11, 3, 5, 3))
sketch2.addConstraint(Sketcher.Constraint("Coincident", 15, 3, 13, 3))
sketch2.addConstraint(Sketcher.Constraint("Coincident", 17, 3, 5, 3))
sketch2.addConstraint(Sketcher.Constraint("Coincident", 21, 3, 19, 3))
sketch2.addConstraint(Sketcher.Constraint("Coincident", 23, 3, 5, 3))
sketch2.addConstraint(Sketcher.Constraint("Coincident", 26, 3, 5, 3))
sketch2.addConstraint(Sketcher.Constraint("Coincident", 29, 3, 13, 3))
sketch2.addConstraint(Sketcher.Constraint("Coincident", 32, 3, 5, 3))
sketch2.addConstraint(Sketcher.Constraint("Coincident", 35, 3, 19, 3))
sketch2.addConstraint(Sketcher.Constraint("Coincident", 38, 3, 1, 3))
sketch2.addConstraint(Sketcher.Constraint("Coincident", 41, 3, 5, 3))
sketch2.addConstraint(Sketcher.Constraint("Coincident", 43, 3, 5, 3))
sketch2.addConstraint(Sketcher.Constraint("Coincident", 46, 3, 7, 3))
sketch2.addConstraint(Sketcher.Constraint("Equal", 3, 7))
sketch2.addConstraint(Sketcher.Constraint("Equal", 5, 11))
sketch2.addConstraint(Sketcher.Constraint("Equal", 9, 13))
sketch2.addConstraint(Sketcher.Constraint("Equal", 11, 17))
sketch2.addConstraint(Sketcher.Constraint("Equal", 15, 19))
sketch2.addConstraint(Sketcher.Constraint("Equal", 17, 23))
sketch2.addConstraint(Sketcher.Constraint("Equal", 23, 24))
sketch2.addConstraint(Sketcher.Constraint("Equal", 24, 26))
sketch2.addConstraint(Sketcher.Constraint("Equal", 26, 27))
sketch2.addConstraint(Sketcher.Constraint("Equal", 21, 29))
sketch2.addConstraint(Sketcher.Constraint("Equal", 29, 30))
sketch2.addConstraint(Sketcher.Constraint("Equal", 27, 32))
sketch2.addConstraint(Sketcher.Constraint("Equal", 32, 33))
sketch2.addConstraint(Sketcher.Constraint("Equal", 30, 35))
sketch2.addConstraint(Sketcher.Constraint("Equal", 35, 36))
sketch2.addConstraint(Sketcher.Constraint("Equal", 36, 38))
sketch2.addConstraint(Sketcher.Constraint("Equal", 38, 39))
sketch2.addConstraint(Sketcher.Constraint("Equal", 33, 41))
sketch2.addConstraint(Sketcher.Constraint("Equal", 41, 42))
sketch2.addConstraint(Sketcher.Constraint("Equal", 42, 43))
sketch2.addConstraint(Sketcher.Constraint("Equal", 43, 44))
sketch2.addConstraint(Sketcher.Constraint("Equal", 39, 46))
sketch2.addConstraint(Sketcher.Constraint("Equal", 46, 47))
sketch2.addConstraint(Sketcher.Constraint("Parallel", 0, 4))
sketch2.addConstraint(Sketcher.Constraint("Parallel", 6, 10))
sketch2.addConstraint(Sketcher.Constraint("Parallel", 4, 12))
sketch2.addConstraint(Sketcher.Constraint("Parallel", 12, 16))
sketch2.addConstraint(Sketcher.Constraint("Parallel", 10, 18))
sketch2.addConstraint(Sketcher.Constraint("Parallel", 18, 22))
sketch2.addConstraint(Sketcher.Constraint("Parallel", 28, 37))
sketch2.addConstraint(Sketcher.Constraint("Parallel", 25, 40))
sketch2.addConstraint(Sketcher.Constraint("Parallel", 34, 45))
sketch2.addConstraint(Sketcher.Constraint("Parallel", 31, 48))
sketch2.addConstraint(Sketcher.Constraint("Horizontal", 3, 3, 7, 3))
sketch2.addConstraint(Sketcher.Constraint("Horizontal", 15, 3, 19, 3))
sketch2.addConstraint(Sketcher.Constraint("Horizontal", 47, 3, 2, 2))
sketch2.addConstraint(Sketcher.Constraint("Horizontal", 4, 2, 5, 2))
sketch2.addConstraint(Sketcher.Constraint("Horizontal", 3, 2, 6, 2))
sketch2.addConstraint(Sketcher.Constraint("Horizontal", 2, 2, 7, 2))
sketch2.addConstraint(Sketcher.Constraint("Horizontal", 0, 2, 9, 2))
sketch2.addConstraint(Sketcher.Constraint("Horizontal", 36, 3, 14, 2))
sketch2.addConstraint(Sketcher.Constraint("Horizontal", 16, 2, 17, 2))
sketch2.addConstraint(Sketcher.Constraint("Horizontal", 15, 2, 18, 2))
sketch2.addConstraint(Sketcher.Constraint("Horizontal", 14, 2, 19, 2))
sketch2.addConstraint(Sketcher.Constraint("Horizontal", 12, 2, 21, 2))
sketch2.addConstraint(Sketcher.Constraint("Horizontal", 44, 3, 23, 2))
sketch2.addConstraint(Sketcher.Constraint("Horizontal", 27, 2, 31, 2))
sketch2.addConstraint(Sketcher.Constraint("Horizontal", 26, 2, 32, 2))
sketch2.addConstraint(Sketcher.Constraint("Horizontal", 25, 2, 33, 2))
sketch2.addConstraint(Sketcher.Constraint("Horizontal", 30, 2, 34, 2))
sketch2.addConstraint(Sketcher.Constraint("Horizontal", 29, 2, 35, 2))
sketch2.addConstraint(Sketcher.Constraint("Horizontal", 28, 2, 36, 2))
sketch2.addConstraint(Sketcher.Constraint("Horizontal", 41, 2, 43, 2))
sketch2.addConstraint(Sketcher.Constraint("Horizontal", 40, 2, 44, 2))
sketch2.addConstraint(Sketcher.Constraint("Horizontal", 38, 2, 46, 2))
sketch2.addConstraint(Sketcher.Constraint("Horizontal", 37, 2, 47, 2))
sketch2.addConstraint(Sketcher.Constraint("Vertical", 9, 3, 13, 3))
sketch2.addConstraint(Sketcher.Constraint("Vertical", 3, 3, 19, 3))
sketch2.addConstraint(Sketcher.Constraint("Vertical", 39, 3, 1, 2))
sketch2.addConstraint(Sketcher.Constraint("Vertical", 47, 3, 8, 2))
sketch2.addConstraint(Sketcher.Constraint("Vertical", 10, 2, 11, 2))
sketch2.addConstraint(Sketcher.Constraint("Vertical", 9, 2, 12, 2))
sketch2.addConstraint(Sketcher.Constraint("Vertical", 8, 2, 13, 2))
sketch2.addConstraint(Sketcher.Constraint("Vertical", 6, 2, 15, 2))
sketch2.addConstraint(Sketcher.Constraint("Vertical", 1, 2, 20, 2))
sketch2.addConstraint(Sketcher.Constraint("Vertical", 36, 2, 37, 2))
sketch2.addConstraint(Sketcher.Constraint("Vertical", 35, 2, 38, 2))
sketch2.addConstraint(Sketcher.Constraint("Vertical", 34, 2, 39, 2))
sketch2.addConstraint(Sketcher.Constraint("Vertical", 32, 2, 41, 2))
sketch2.addConstraint(Sketcher.Constraint("Radius", 1, 15.0))
sketch2.addConstraint(Sketcher.Constraint("Radius", 5, 20.821685))
sketch2.addConstraint(Sketcher.Constraint("DistanceY", -1, 1, 0, 2, 33.091399))
sketch2.addConstraint(Sketcher.Constraint("Distance", 28, 54.593179))
sketch2.addConstraint(Sketcher.Constraint("DistanceX", -1, 1, 0, 2, 73.320651))
sketch2.addConstraint(Sketcher.Constraint("DistanceX", -1, 1, 3, 2, 67.09318))
sketch2.addConstraint(Sketcher.Constraint("DistanceY", -1, 1, 3, 2, 41.388018))
sketch2.addConstraint(Sketcher.Constraint("DistanceX", -1, 1, 4, 2, 19.729191))
sketch2.addConstraint(Sketcher.Constraint("DistanceY", -1, 1, 4, 2, 11.737561))
sketch2.addConstraint(Sketcher.Constraint("DistanceX", 5, 2, -1, 1, 6.80242))
sketch2.addConstraint(Sketcher.Constraint("DistanceY", 25, 2, -1, 1, 14.90008))
sketch2.addConstraint(Sketcher.Constraint("DistanceX", 28, 2, -1, 1, 55.378638))
sketch2.addConstraint(Sketcher.Constraint("DistanceX", 29, 2, -1, 1, 56.453718))
sketch2.addConstraint(Sketcher.Constraint("Distance", 25, 54.611345))
sketch2.addConstraint(Sketcher.Constraint("DistanceX", 26, 2, -1, 1, 10.366085))
pad2 = body2.newObject("PartDesign::Pad", "Pad001")
pad2.Profile = sketch2
pad2.Length = 5

doc.recompute()
